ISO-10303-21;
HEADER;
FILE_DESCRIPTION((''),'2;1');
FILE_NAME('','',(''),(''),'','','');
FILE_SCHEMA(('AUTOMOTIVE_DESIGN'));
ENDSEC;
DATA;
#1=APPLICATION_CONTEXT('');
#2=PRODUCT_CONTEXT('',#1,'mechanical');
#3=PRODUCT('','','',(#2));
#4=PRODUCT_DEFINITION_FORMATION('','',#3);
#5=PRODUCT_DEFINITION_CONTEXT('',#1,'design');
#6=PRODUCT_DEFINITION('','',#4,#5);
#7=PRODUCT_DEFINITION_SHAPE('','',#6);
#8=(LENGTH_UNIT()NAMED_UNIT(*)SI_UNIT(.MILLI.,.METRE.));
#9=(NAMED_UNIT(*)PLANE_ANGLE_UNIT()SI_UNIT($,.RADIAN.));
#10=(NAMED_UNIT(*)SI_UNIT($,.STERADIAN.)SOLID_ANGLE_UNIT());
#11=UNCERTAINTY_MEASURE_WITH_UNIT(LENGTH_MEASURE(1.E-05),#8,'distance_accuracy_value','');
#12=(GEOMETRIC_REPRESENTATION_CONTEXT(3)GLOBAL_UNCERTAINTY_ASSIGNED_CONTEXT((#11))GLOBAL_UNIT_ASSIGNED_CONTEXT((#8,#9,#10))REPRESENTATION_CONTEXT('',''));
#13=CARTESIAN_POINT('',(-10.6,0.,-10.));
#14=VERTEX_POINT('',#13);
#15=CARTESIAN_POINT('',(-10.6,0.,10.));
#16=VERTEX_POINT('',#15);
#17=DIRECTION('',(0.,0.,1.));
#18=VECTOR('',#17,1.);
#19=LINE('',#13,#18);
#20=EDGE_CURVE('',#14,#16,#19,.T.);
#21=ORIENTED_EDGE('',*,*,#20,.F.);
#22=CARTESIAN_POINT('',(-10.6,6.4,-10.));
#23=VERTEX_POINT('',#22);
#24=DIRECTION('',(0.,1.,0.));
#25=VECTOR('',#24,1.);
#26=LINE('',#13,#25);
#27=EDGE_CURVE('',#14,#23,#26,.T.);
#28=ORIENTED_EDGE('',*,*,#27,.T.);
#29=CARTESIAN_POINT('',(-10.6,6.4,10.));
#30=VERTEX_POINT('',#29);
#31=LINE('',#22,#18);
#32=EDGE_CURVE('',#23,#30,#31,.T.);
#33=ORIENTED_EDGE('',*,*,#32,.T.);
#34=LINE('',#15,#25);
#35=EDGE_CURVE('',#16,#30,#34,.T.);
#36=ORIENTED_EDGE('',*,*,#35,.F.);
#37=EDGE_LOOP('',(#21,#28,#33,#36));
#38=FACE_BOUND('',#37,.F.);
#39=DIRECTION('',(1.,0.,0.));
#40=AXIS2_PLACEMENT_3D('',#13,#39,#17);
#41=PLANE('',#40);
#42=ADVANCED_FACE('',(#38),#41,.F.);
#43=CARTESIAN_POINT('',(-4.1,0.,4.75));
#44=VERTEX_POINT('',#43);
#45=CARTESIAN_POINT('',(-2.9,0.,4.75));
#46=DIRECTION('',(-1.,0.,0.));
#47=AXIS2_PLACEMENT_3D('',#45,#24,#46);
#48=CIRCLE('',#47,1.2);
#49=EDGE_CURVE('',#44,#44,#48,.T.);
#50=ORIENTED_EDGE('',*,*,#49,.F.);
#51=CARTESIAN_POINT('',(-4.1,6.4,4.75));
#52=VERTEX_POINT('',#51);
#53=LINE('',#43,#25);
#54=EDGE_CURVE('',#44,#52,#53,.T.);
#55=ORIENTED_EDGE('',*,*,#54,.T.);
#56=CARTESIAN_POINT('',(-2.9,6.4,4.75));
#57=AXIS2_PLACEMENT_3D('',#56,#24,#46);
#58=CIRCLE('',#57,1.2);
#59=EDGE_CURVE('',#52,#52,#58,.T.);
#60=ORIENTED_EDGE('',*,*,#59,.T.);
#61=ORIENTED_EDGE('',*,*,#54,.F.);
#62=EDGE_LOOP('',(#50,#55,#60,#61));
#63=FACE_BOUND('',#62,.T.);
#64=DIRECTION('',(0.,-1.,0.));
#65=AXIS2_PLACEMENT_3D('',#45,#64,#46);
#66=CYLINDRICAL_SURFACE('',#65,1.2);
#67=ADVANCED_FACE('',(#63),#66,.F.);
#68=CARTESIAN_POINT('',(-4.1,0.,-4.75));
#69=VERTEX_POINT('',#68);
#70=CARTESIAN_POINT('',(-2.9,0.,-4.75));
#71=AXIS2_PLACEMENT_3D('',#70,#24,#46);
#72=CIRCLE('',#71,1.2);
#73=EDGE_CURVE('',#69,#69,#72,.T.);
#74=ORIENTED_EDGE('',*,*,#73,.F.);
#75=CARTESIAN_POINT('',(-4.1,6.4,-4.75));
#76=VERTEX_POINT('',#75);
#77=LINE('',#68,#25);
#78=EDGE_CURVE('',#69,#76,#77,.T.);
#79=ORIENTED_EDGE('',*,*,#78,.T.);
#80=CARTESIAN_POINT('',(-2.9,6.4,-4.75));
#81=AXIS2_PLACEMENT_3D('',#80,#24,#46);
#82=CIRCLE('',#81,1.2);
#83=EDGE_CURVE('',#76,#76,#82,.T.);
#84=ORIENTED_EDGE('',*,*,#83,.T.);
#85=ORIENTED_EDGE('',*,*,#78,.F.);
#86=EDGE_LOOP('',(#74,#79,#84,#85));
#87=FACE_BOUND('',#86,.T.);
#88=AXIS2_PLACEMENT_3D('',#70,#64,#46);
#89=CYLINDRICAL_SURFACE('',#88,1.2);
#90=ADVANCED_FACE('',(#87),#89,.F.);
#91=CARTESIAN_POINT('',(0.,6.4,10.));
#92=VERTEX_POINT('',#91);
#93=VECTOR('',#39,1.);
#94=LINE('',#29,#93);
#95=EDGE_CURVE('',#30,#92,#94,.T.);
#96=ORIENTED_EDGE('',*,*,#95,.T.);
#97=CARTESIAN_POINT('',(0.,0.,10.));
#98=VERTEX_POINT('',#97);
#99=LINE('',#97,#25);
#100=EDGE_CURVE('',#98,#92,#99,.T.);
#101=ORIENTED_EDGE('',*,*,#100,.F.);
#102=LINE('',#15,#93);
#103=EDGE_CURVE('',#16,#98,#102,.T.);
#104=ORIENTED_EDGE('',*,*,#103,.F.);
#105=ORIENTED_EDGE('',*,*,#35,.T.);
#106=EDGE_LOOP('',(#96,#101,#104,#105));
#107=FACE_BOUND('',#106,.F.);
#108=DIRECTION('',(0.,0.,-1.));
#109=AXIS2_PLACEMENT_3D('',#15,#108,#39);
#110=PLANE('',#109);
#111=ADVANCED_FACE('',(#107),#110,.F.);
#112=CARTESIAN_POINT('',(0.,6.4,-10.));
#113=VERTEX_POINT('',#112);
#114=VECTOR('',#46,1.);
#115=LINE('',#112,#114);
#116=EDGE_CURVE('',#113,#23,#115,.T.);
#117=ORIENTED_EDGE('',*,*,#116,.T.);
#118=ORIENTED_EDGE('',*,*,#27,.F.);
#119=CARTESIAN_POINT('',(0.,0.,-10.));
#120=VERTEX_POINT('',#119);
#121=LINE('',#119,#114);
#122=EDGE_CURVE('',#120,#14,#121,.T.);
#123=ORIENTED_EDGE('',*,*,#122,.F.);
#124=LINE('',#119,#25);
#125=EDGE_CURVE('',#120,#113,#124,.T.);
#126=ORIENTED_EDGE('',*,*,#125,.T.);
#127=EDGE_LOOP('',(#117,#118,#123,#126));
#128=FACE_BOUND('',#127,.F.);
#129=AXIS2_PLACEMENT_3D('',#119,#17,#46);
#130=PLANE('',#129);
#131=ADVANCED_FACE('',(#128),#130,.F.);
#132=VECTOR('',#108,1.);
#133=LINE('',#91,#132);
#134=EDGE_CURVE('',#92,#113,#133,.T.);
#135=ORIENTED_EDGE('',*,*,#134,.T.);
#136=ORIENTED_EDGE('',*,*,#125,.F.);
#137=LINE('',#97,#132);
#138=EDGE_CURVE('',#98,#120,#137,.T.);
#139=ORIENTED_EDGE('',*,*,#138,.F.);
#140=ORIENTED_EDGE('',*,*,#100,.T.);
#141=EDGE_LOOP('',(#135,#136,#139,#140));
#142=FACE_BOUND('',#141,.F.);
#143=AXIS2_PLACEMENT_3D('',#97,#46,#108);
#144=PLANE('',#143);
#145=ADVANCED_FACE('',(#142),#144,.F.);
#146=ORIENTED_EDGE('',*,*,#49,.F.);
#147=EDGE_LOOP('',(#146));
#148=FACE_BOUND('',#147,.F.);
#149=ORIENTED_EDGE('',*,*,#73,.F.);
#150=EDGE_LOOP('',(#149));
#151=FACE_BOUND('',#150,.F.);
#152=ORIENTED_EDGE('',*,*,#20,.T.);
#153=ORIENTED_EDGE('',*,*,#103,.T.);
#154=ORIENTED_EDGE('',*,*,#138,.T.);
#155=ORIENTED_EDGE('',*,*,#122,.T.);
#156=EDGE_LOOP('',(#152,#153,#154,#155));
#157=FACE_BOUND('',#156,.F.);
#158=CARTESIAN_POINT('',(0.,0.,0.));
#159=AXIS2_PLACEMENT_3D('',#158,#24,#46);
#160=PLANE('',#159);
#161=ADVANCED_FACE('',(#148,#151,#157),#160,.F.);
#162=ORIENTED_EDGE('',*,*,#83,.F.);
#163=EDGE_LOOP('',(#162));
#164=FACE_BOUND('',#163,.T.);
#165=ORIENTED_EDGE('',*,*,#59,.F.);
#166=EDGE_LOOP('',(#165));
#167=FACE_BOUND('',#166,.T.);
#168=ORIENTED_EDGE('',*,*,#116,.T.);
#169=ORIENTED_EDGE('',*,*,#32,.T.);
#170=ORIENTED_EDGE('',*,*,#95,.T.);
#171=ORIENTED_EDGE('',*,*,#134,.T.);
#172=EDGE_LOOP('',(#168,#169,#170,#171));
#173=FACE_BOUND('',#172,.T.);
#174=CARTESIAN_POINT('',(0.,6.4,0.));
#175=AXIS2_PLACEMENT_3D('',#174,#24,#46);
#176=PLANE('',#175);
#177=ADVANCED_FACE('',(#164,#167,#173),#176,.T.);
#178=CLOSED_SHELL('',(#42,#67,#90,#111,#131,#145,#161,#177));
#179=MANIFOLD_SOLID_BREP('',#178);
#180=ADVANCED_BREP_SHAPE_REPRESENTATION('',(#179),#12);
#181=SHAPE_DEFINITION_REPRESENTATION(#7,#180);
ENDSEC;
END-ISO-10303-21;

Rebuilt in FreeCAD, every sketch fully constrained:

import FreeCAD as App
import Part
import Sketcher

V = App.Vector

doc = App.newDocument("Part")
body = doc.addObject("PartDesign::Body", "Body")

sketch1 = doc.addObject("Sketcher::SketchObject", "Sketch")
body.addObject(sketch1)
sketch1.AttachmentSupport = (doc.XZ_Plane, [""])
sketch1.MapMode = "FlatFace"
sketch1.addGeometry([
    Part.LineSegment(V(-10.6, -10, 0), V(-10.6, 10, 0)),
    Part.LineSegment(V(-10.6, 10, 0), V(0, 10, 0)),
    Part.LineSegment(V(0, 10, 0), V(0, -10, 0)),
    Part.LineSegment(V(0, -10, 0), V(-10.6, -10, 0)),
    Part.Circle(V(-2.9, -4.75, 0), V(0, 0, 1), 1.2),
    Part.Circle(V(-2.9, 4.75, 0), V(0, 0, 1), 1.2),
], False)
sketch1.addConstraint([
    Sketcher.Constraint("Coincident", 0, 2, 1, 1),
    Sketcher.Constraint("Coincident", 1, 2, 2, 1),
    Sketcher.Constraint("Coincident", 2, 2, 3, 1),
    Sketcher.Constraint("Coincident", 3, 2, 0, 1),
    Sketcher.Constraint("Vertical", 0),
    Sketcher.Constraint("Horizontal", 1),
    Sketcher.Constraint("Vertical", 2),
    Sketcher.Constraint("Horizontal", 3),
    Sketcher.Constraint("Equal", 4, 5),
    Sketcher.Constraint("Symmetric", 1, 2, 2, 2, -1, 1),
    Sketcher.Constraint("Symmetric", 4, 3, 5, 3, -1),
    Sketcher.Constraint("Diameter", 4, 2.4),
    Sketcher.Constraint("DistanceY", 0, 1, 0, 2, 20.0),
    Sketcher.Constraint("DistanceX", 1, 1, 1, 2, 10.6),
    Sketcher.Constraint("DistanceX", 4, 3, -1, 1, 2.9),
    Sketcher.Constraint("DistanceY", 4, 3, 5, 3, 9.5),
])
pad1 = doc.addObject("PartDesign::Pad", "Pad")
body.addObject(pad1)
pad1.Profile = sketch1
pad1.Length = 6.4
pad1.Reversed = True

doc.recompute()
